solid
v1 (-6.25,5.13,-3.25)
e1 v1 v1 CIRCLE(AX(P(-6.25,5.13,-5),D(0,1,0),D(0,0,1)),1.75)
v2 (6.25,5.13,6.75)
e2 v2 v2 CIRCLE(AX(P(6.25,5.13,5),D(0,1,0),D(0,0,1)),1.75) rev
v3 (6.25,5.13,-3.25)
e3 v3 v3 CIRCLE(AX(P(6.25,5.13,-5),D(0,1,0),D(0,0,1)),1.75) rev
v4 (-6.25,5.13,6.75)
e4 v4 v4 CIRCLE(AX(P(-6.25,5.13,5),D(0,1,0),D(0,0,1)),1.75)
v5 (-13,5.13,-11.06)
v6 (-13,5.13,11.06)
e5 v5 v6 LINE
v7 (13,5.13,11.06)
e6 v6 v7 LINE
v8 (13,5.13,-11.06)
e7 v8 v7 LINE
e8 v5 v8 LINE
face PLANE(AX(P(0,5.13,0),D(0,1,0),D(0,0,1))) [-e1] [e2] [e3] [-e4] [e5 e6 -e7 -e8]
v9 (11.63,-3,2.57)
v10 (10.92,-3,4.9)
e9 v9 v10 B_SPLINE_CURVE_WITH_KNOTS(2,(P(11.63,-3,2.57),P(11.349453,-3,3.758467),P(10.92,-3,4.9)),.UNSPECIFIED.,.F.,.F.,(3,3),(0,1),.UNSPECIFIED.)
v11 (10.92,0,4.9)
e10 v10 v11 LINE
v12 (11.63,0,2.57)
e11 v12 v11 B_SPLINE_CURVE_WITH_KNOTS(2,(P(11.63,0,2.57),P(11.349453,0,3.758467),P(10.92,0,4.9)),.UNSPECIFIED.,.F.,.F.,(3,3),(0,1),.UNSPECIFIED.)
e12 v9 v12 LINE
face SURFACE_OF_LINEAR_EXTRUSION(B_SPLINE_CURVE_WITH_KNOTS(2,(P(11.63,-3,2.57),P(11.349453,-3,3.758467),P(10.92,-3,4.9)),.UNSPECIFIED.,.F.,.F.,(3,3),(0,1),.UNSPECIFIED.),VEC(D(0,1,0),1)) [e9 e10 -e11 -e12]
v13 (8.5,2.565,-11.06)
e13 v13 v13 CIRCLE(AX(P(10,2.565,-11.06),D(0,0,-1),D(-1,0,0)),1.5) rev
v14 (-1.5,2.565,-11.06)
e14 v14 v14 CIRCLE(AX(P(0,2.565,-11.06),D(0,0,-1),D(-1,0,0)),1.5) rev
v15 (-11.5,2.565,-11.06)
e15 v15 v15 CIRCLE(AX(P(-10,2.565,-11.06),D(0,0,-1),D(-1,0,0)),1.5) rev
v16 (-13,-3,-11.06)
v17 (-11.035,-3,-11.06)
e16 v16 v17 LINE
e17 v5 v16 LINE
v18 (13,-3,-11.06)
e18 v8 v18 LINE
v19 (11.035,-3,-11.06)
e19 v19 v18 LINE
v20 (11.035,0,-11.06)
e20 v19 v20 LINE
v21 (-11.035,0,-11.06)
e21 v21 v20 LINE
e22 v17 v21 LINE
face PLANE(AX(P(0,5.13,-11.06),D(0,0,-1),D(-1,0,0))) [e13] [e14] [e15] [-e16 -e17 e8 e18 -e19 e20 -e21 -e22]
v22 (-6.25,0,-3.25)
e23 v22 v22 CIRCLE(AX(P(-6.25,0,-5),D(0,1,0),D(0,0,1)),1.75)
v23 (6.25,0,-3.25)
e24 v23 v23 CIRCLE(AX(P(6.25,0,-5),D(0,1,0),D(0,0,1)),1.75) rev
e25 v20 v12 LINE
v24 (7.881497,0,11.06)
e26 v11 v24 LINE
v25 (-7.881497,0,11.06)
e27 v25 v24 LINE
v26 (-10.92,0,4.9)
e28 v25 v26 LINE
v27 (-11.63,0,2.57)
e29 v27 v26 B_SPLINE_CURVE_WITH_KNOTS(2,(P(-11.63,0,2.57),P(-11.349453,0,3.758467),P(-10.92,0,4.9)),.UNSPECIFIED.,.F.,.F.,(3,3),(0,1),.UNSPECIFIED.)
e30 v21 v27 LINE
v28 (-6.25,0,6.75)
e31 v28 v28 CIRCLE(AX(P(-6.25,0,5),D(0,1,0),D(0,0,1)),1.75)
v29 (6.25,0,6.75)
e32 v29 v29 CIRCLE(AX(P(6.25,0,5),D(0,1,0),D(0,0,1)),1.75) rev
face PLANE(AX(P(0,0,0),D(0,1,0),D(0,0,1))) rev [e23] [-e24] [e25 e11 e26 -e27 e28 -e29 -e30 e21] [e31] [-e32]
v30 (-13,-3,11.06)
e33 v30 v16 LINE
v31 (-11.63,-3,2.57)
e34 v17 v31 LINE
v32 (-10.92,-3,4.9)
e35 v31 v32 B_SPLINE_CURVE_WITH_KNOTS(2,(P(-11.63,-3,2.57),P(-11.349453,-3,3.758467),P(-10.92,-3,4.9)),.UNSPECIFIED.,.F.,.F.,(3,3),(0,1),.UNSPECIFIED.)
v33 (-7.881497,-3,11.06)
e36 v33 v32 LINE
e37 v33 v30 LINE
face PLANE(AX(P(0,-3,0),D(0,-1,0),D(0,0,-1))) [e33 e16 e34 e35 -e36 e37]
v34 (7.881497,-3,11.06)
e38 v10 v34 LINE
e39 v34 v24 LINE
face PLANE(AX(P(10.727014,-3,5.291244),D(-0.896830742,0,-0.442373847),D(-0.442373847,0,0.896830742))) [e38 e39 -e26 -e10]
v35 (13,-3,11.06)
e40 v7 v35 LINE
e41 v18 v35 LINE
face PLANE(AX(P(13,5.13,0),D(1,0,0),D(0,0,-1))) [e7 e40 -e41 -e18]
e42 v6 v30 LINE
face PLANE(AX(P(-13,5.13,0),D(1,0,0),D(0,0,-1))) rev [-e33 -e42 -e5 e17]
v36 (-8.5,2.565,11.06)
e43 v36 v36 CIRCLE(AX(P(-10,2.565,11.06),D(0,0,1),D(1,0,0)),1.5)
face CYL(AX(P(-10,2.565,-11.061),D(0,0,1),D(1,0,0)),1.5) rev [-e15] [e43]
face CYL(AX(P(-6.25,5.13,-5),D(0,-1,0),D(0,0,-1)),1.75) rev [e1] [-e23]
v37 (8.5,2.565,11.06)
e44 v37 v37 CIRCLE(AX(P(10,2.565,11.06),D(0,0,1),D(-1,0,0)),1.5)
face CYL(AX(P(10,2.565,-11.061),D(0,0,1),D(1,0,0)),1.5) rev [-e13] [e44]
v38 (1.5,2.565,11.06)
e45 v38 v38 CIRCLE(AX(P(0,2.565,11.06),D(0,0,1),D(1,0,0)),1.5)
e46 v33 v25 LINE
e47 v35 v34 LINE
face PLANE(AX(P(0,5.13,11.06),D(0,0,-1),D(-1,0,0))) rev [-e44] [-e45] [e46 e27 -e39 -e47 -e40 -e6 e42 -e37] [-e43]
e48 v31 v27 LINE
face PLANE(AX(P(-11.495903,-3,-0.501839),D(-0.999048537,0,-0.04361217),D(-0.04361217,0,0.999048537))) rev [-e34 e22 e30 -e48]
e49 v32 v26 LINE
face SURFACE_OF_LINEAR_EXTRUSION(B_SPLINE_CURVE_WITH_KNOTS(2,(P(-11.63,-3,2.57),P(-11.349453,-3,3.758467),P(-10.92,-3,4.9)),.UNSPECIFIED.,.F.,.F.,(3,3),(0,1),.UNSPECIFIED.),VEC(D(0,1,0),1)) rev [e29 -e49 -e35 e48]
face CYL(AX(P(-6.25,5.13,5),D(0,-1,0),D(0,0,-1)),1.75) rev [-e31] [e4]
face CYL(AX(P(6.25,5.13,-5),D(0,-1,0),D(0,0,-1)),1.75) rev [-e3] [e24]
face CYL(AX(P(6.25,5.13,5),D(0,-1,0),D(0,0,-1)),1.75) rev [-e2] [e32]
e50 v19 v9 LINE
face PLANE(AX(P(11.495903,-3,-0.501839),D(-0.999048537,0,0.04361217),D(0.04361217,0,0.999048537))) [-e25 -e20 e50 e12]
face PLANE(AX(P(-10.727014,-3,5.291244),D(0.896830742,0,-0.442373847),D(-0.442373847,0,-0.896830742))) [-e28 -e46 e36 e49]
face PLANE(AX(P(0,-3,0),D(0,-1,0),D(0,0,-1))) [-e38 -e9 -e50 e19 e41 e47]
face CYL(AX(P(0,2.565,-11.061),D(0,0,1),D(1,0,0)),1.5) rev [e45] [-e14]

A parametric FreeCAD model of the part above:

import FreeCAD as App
import Part
import Sketcher

V = App.Vector
Q = App.Units.Quantity


def add_polygon(sketch, points):
    """Adds a closed chain of lines whose ends are joined by coincident constraints."""
    first, n = sketch.GeometryCount, len(points)
    for a, b in zip(points, points[1:] + points[:1]):
        sketch.addGeometry(Part.LineSegment(App.Vector(*a, 0), App.Vector(*b, 0)), False)
    for i in range(n):
        sketch.addConstraint(Sketcher.Constraint("Coincident", first + i, 2, first + (i + 1) % n, 1))

doc = App.newDocument("Part")
params = doc.addObject("Spreadsheet::Sheet", "Params")
for row, (alias, value) in enumerate([
    ("sketch1_diameter", "3.5 mm"),
    ("sketch1_width", "26 mm"),
    ("sketch1_height", "22.12 mm"),
    ("pad1_length", "5.13 mm"),
    ("sketch2_diameter", "3 mm"),
    ("sketch3_diameter", "3 mm"),
    ("sketch4_diameter", "3 mm"),
    ("sketch5_height", "22.12 mm"),
    ("pad2_length", "3 mm"),
], start=1):
    params.set(f"A{row}", alias)
    params.set(f"B{row}", "=" + value)
    params.setAlias(f"B{row}", alias)

body = doc.addObject("PartDesign::Body", "Body")

sketch1 = doc.addObject("Sketcher::SketchObject", "Sketch")
body.addObject(sketch1)
sketch1.AttachmentSupport = (doc.XZ_Plane, [""])
sketch1.MapMode = "FlatFace"
add_polygon(sketch1, [(-13, -11.06), (-13, 11.06), (13, 11.06), (13, -11.06)])
sketch1.addGeometry(Part.Circle(V(-6.25, 5, 0), V(0, 0, 1), 1.75), False)
sketch1.addGeometry(Part.Circle(V(6.25, 5, 0), V(0, 0, 1), 1.75), False)
sketch1.addGeometry(Part.Circle(V(-6.25, -5, 0), V(0, 0, 1), 1.75), False)
sketch1.addGeometry(Part.Circle(V(6.25, -5, 0), V(0, 0, 1), 1.75), False)
sketch1.addConstraint(Sketcher.Constraint("Vertical", 0))
sketch1.addConstraint(Sketcher.Constraint("Horizontal", 1))
sketch1.addConstraint(Sketcher.Constraint("Vertical", 2))
sketch1.addConstraint(Sketcher.Constraint("Horizontal", 3))
sketch1.addConstraint(Sketcher.Constraint("Equal", 4, 5))
sketch1.addConstraint(Sketcher.Constraint("Equal", 5, 6))
sketch1.addConstraint(Sketcher.Constraint("Equal", 6, 7))
sketch1.addConstraint(Sketcher.Constraint("Symmetric", 5, 3, 6, 3, -1, 1))
sketch1.addConstraint(Sketcher.Constraint("Symmetric", 4, 3, 7, 3, -1, 1))
sketch1.addConstraint(Sketcher.Constraint("Symmetric", 0, 2, 2, 2, -1, 1))
sketch1.addConstraint(Sketcher.Constraint("Symmetric", 4, 3, 5, 3, -2))
sketch1.addConstraint(Sketcher.Constraint("Diameter", 4, Q("3.5 mm")))
sketch1.addConstraint(Sketcher.Constraint("DistanceX", 1, 1, 1, 2, Q("26 mm")))
sketch1.addConstraint(Sketcher.Constraint("DistanceY", -1, 1, 4, 3, Q("5 mm")))
sketch1.addConstraint(Sketcher.Constraint("DistanceY", 0, 1, 0, 2, Q("22.12 mm")))
sketch1.addConstraint(Sketcher.Constraint("DistanceX", 4, 3, 5, 3, Q("12.5 mm")))
sketch1.setExpression("Constraints[15]", "Params.sketch1_diameter")
sketch1.setExpression("Constraints[16]", "Params.sketch1_width")
sketch1.setExpression("Constraints[18]", "Params.sketch1_height")
pad1 = doc.addObject("PartDesign::Pad", "Pad")
body.addObject(pad1)
pad1.Profile = sketch1
pad1.setExpression("Length", "Params.pad1_length")
pad1.Reversed = True

sketch2 = doc.addObject("Sketcher::SketchObject", "Sketch001")
body.addObject(sketch2)
sketch2.AttachmentSupport = (doc.XY_Plane, [""])
sketch2.MapMode = "FlatFace"
sketch2.AttachmentOffset = App.Placement(V(0, 0, 11.06), App.Rotation())
sketch2.addGeometry(Part.Circle(V(0, 2.565, 0), V(0, 0, 1), 1.5), False)
sketch2.addConstraint(Sketcher.Constraint("PointOnObject", 0, 3, -2))
sketch2.addConstraint(Sketcher.Constraint("Diameter", 0, Q("3 mm")))
sketch2.addConstraint(Sketcher.Constraint("DistanceY", -1, 1, 0, 3, Q("2.565 mm")))
sketch2.setExpression("Constraints[1]", "Params.sketch2_diameter")
pocket1 = doc.addObject("PartDesign::Pocket", "Pocket")
body.addObject(pocket1)
pocket1.Profile = sketch2
pocket1.Type = "UpToFirst"

sketch3 = doc.addObject("Sketcher::SketchObject", "Sketch002")
body.addObject(sketch3)
sketch3.AttachmentSupport = (doc.XY_Plane, [""])
sketch3.MapMode = "FlatFace"
sketch3.AttachmentOffset = App.Placement(V(0, 0, 11.06), App.Rotation())
sketch3.addGeometry(Part.Circle(V(-10, 2.565, 0), V(0, 0, 1), 1.5), False)
sketch3.addConstraint(Sketcher.Constraint("Diameter", 0, Q("3 mm")))
sketch3.addConstraint(Sketcher.Constraint("DistanceX", 0, 3, -1, 1, Q("10 mm")))
sketch3.addConstraint(Sketcher.Constraint("DistanceY", -1, 1, 0, 3, Q("2.565 mm")))
sketch3.setExpression("Constraints[0]", "Params.sketch3_diameter")
pocket2 = doc.addObject("PartDesign::Pocket", "Pocket001")
body.addObject(pocket2)
pocket2.Profile = sketch3
pocket2.Type = "UpToFirst"

sketch4 = doc.addObject("Sketcher::SketchObject", "Sketch003")
body.addObject(sketch4)
sketch4.AttachmentSupport = (doc.XY_Plane, [""])
sketch4.MapMode = "FlatFace"
sketch4.AttachmentOffset = App.Placement(V(0, 0, 11.06), App.Rotation())
sketch4.addGeometry(Part.Circle(V(10, 2.565, 0), V(0, 0, 1), 1.5), False)
sketch4.addConstraint(Sketcher.Constraint("Diameter", 0, Q("3 mm")))
sketch4.addConstraint(Sketcher.Constraint("DistanceX", -1, 1, 0, 3, Q("10 mm")))
sketch4.addConstraint(Sketcher.Constraint("DistanceY", -1, 1, 0, 3, Q("2.565 mm")))
sketch4.setExpression("Constraints[0]", "Params.sketch4_diameter")
pocket3 = doc.addObject("PartDesign::Pocket", "Pocket002")
body.addObject(pocket3)
pocket3.Profile = sketch4
pocket3.Type = "UpToFirst"

sketch5 = doc.addObject("Sketcher::SketchObject", "Sketch004")
body.addObject(sketch5)
sketch5.AttachmentSupport = (doc.XZ_Plane, [""])
sketch5.MapMode = "FlatFace"
sketch5.addGeometry(Part.LineSegment(V(-13, -11.06, 0), V(-11.035, -11.06, 0)), False)
sketch5.addGeometry(Part.LineSegment(V(-11.035, -11.06, 0), V(-11.63, 2.57, 0)), False)
sketch5.addGeometry(Part.BSplineCurve([V(-11.63, 2.57, 0), V(-11.349453, 3.758467, 0), V(-10.92, 4.9, 0)], [3, 3], [0, 1], False, 2, [1, 1, 1], False), False)
sketch5.addGeometry(Part.LineSegment(V(-10.92, 4.9, 0), V(-7.881497, 11.06, 0)), False)
sketch5.addGeometry(Part.LineSegment(V(-7.881497, 11.06, 0), V(-13, 11.06, 0)), False)
sketch5.addGeometry(Part.LineSegment(V(-13, 11.06, 0), V(-13, -11.06, 0)), False)
sketch5.addGeometry(Part.LineSegment(V(11.63, 2.57, 0), V(11.035, -11.06, 0)), False)
sketch5.addGeometry(Part.LineSegment(V(11.035, -11.06, 0), V(13, -11.06, 0)), False)
sketch5.addGeometry(Part.LineSegment(V(13, -11.06, 0), V(13, 11.06, 0)), False)
sketch5.addGeometry(Part.LineSegment(V(13, 11.06, 0), V(7.881497, 11.06, 0)), False)
sketch5.addGeometry(Part.LineSegment(V(7.881497, 11.06, 0), V(10.92, 4.9, 0)), False)
sketch5.addGeometry(Part.BSplineCurve([V(11.63, 2.57, 0), V(11.349453, 3.758467, 0), V(10.92, 4.9, 0)], [3, 3], [0, 1], False, 2, [1, 1, 1], False), False)
sketch5.addConstraint(Sketcher.Constraint("Block", 2))
sketch5.addConstraint(Sketcher.Constraint("Block", 11))
sketch5.addConstraint(Sketcher.Constraint("Coincident", 0, 2, 1, 1))
sketch5.addConstraint(Sketcher.Constraint("Coincident", 1, 2, 2, 1))
sketch5.addConstraint(Sketcher.Constraint("Coincident", 2, 2, 3, 1))
sketch5.addConstraint(Sketcher.Constraint("Coincident", 3, 2, 4, 1))
sketch5.addConstraint(Sketcher.Constraint("Coincident", 4, 2, 5, 1))
sketch5.addConstraint(Sketcher.Constraint("Coincident", 5, 2, 0, 1))
sketch5.addConstraint(Sketcher.Constraint("Coincident", 6, 2, 7, 1))
sketch5.addConstraint(Sketcher.Constraint("Coincident", 7, 2, 8, 1))
sketch5.addConstraint(Sketcher.Constraint("Coincident", 8, 2, 9, 1))
sketch5.addConstraint(Sketcher.Constraint("Coincident", 9, 2, 10, 1))
sketch5.addConstraint(Sketcher.Constraint("Coincident", 10, 2, 11, 2))
sketch5.addConstraint(Sketcher.Constraint("Coincident", 11, 1, 6, 1))
sketch5.addConstraint(Sketcher.Constraint("Horizontal", 0))
sketch5.addConstraint(Sketcher.Constraint("Horizontal", 4))
sketch5.addConstraint(Sketcher.Constraint("Vertical", 5))
sketch5.addConstraint(Sketcher.Constraint("Horizontal", 7))
sketch5.addConstraint(Sketcher.Constraint("Vertical", 8))
sketch5.addConstraint(Sketcher.Constraint("Horizontal", 9))
sketch5.addConstraint(Sketcher.Constraint("Symmetric", 4, 2, 7, 2, -1, 1))
sketch5.addConstraint(Sketcher.Constraint("Symmetric", 0, 2, 6, 2, -2))
sketch5.addConstraint(Sketcher.Constraint("Symmetric", 3, 2, 9, 2, -2))
sketch5.addConstraint(Sketcher.Constraint("DistanceX", 4, 2, -1, 1, Q("13 mm")))
sketch5.addConstraint(Sketcher.Constraint("DistanceY", 5, 2, 5, 1, Q("22.12 mm")))
sketch5.addConstraint(Sketcher.Constraint("DistanceX", 0, 1, 0, 2, Q("1.965 mm")))
sketch5.addConstraint(Sketcher.Constraint("Distance", 3, Q("6.868632 mm")))
sketch5.setExpression("Constraints[24]", "Params.sketch5_height")
pad2 = doc.addObject("PartDesign::Pad", "Pad001")
body.addObject(pad2)
pad2.Profile = sketch5
pad2.setExpression("Length", "Params.pad2_length")

doc.recompute()
